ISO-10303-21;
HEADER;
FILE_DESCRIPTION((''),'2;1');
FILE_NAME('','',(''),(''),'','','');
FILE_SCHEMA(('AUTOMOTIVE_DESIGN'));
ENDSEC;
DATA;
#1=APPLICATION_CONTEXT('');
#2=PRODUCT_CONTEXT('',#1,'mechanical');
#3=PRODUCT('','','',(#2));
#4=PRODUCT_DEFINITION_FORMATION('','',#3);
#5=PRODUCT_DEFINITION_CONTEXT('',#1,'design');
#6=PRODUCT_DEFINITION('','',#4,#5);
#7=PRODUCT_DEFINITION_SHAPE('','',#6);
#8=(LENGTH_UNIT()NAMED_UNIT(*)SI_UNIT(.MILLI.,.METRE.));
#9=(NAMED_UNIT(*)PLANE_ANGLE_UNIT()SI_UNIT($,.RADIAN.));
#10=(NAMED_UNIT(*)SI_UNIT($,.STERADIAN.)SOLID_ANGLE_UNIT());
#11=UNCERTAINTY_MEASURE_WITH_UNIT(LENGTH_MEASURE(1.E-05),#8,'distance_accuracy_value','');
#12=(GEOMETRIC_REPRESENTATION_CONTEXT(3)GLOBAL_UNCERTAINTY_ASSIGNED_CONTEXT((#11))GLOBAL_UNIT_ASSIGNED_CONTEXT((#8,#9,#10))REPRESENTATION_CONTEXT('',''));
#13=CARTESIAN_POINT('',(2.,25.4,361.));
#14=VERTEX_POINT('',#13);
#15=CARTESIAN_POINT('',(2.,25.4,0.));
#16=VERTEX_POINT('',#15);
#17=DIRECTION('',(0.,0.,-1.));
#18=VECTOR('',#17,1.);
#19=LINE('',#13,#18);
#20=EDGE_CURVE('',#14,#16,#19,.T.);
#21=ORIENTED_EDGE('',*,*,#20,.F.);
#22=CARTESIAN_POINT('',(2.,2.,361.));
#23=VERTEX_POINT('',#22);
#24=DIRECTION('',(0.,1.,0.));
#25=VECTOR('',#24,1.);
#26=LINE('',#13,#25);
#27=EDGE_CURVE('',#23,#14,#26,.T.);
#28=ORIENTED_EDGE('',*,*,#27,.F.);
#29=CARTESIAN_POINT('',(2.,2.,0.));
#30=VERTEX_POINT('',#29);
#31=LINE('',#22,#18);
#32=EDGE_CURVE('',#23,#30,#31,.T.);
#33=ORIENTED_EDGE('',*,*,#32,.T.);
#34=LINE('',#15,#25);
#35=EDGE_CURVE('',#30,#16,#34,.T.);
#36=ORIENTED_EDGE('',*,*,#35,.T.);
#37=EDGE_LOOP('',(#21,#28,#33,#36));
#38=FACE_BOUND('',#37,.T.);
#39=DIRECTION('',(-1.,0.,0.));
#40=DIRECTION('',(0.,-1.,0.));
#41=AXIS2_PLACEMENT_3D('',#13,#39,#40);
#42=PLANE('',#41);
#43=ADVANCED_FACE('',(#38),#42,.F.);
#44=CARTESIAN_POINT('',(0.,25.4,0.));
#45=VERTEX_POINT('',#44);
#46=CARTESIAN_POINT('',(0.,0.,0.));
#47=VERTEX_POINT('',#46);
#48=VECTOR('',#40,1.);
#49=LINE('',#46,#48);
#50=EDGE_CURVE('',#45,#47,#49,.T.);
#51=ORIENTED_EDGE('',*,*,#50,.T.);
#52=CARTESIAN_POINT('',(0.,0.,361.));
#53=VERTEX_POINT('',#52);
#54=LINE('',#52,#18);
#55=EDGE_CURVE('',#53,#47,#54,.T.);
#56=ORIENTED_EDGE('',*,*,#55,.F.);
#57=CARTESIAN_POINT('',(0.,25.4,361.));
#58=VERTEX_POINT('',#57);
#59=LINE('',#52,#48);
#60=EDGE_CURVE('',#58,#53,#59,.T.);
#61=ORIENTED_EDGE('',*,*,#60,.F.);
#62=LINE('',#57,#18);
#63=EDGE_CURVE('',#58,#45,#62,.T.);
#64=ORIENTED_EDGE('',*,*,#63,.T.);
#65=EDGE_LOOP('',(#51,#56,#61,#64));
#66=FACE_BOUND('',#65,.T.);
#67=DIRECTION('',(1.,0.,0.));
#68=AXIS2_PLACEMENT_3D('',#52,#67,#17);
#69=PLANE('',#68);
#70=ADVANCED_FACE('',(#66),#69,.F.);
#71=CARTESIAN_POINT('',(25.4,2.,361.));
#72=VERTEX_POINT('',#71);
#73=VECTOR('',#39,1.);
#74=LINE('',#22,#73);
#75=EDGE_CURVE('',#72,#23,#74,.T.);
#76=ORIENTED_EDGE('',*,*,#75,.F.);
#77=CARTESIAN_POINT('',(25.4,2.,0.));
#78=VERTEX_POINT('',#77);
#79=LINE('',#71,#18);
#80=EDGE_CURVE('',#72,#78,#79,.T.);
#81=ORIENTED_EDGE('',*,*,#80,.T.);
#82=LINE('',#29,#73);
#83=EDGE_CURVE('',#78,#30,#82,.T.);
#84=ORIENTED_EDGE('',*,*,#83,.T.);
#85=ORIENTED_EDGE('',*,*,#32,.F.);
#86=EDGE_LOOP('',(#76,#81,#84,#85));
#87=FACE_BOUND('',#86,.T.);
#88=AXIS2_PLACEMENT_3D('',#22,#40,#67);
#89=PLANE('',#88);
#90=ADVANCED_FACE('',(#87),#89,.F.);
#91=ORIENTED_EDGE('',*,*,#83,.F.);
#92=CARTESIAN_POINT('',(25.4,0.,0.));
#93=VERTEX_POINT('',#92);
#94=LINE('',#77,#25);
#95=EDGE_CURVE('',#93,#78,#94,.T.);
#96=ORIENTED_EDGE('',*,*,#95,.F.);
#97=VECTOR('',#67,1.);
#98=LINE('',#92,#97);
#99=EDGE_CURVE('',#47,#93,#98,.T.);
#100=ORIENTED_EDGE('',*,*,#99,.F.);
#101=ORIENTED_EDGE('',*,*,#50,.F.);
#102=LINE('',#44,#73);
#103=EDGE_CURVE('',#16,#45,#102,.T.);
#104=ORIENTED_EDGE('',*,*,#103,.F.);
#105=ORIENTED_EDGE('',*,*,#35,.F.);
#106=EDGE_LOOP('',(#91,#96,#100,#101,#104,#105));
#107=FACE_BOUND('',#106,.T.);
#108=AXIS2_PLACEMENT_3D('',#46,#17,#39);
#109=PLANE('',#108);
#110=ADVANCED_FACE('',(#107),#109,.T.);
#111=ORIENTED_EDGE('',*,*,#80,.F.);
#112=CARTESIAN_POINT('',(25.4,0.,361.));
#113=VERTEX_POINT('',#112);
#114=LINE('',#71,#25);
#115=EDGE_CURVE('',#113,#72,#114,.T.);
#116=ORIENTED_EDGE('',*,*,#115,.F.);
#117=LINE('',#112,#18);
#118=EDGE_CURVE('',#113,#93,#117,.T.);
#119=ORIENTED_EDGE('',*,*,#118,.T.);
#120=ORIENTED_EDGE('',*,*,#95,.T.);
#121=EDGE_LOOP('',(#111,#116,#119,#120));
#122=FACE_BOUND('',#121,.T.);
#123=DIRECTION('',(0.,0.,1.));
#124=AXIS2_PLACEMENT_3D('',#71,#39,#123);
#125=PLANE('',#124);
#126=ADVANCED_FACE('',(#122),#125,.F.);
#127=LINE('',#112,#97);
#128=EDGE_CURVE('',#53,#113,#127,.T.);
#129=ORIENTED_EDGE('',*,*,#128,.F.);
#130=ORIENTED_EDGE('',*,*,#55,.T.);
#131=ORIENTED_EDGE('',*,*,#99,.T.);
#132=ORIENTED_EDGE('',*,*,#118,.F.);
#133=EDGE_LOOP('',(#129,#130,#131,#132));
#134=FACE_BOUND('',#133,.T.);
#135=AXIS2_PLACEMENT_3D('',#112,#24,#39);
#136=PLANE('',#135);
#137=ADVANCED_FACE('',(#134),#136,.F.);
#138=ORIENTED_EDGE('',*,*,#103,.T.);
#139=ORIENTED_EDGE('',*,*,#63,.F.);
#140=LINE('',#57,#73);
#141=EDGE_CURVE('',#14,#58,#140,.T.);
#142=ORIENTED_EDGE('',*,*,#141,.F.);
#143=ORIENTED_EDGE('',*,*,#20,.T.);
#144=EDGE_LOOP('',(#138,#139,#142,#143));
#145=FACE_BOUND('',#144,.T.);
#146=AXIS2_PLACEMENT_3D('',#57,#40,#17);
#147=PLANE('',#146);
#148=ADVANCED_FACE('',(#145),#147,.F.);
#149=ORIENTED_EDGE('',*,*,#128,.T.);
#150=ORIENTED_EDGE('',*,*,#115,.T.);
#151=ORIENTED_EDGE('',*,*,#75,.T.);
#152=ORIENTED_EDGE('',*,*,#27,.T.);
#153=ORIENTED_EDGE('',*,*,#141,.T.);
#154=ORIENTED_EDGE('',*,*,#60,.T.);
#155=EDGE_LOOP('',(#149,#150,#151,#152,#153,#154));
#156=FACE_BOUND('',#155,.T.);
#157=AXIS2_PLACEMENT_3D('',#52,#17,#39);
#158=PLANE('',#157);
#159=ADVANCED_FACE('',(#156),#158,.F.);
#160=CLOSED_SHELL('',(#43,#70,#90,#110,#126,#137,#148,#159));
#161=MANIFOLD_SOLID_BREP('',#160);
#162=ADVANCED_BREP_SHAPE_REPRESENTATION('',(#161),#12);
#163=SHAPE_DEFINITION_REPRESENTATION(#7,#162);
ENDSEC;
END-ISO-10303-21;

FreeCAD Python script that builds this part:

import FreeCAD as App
import Part
import Sketcher

doc = App.newDocument("Part")
body = doc.addObject("PartDesign::Body", "Body")

# Sketch on XY plane
sketch1 = body.newObject("Sketcher::SketchObject", "Sketch")
sketch1.AttachmentSupport = (doc.getObject("XY_Plane"), [""])
sketch1.MapMode = "FlatFace"
sketch1.addGeometry([
    Part.LineSegment(App.Vector(0, 25.4, 0), App.Vector(0, 0, 0)),  # 0
    Part.LineSegment(App.Vector(0, 0, 0), App.Vector(25.4, 0, 0)),  # 1
    Part.LineSegment(App.Vector(25.4, 0, 0), App.Vector(25.4, 2, 0)),  # 2
    Part.LineSegment(App.Vector(25.4, 2, 0), App.Vector(2, 2, 0)),  # 3
    Part.LineSegment(App.Vector(2, 2, 0), App.Vector(2, 25.4, 0)),  # 4
    Part.LineSegment(App.Vector(2, 25.4, 0), App.Vector(0, 25.4, 0)),  # 5
], False)
sketch1.addConstraint([
    Sketcher.Constraint("Coincident", 0, 2, 1, 1),
    Sketcher.Constraint("Coincident", 1, 2, 2, 1),
    Sketcher.Constraint("Coincident", 2, 2, 3, 1),
    Sketcher.Constraint("Coincident", 3, 2, 4, 1),
    Sketcher.Constraint("Coincident", 4, 2, 5, 1),
    Sketcher.Constraint("Coincident", 5, 2, 0, 1),
    Sketcher.Constraint("Vertical", 0),
    Sketcher.Constraint("Horizontal", 1),
    Sketcher.Constraint("Vertical", 2),
    Sketcher.Constraint("Horizontal", 3),
    Sketcher.Constraint("Vertical", 4),
    Sketcher.Constraint("Horizontal", 5),
    Sketcher.Constraint("Coincident", 0, 2, -1, 1),
    Sketcher.Constraint("Equal", 1, 0),
    Sketcher.Constraint("Equal", 5, 2),
    Sketcher.Constraint("DistanceX", 5, 2, 5, 1, 2.0),
    Sketcher.Constraint("DistanceX", 1, 1, 1, 2, 25.4),
])
pad1 = body.newObject("PartDesign::Pad", "Pad")
pad1.Profile = sketch1
pad1.Length = 361

doc.recompute()
